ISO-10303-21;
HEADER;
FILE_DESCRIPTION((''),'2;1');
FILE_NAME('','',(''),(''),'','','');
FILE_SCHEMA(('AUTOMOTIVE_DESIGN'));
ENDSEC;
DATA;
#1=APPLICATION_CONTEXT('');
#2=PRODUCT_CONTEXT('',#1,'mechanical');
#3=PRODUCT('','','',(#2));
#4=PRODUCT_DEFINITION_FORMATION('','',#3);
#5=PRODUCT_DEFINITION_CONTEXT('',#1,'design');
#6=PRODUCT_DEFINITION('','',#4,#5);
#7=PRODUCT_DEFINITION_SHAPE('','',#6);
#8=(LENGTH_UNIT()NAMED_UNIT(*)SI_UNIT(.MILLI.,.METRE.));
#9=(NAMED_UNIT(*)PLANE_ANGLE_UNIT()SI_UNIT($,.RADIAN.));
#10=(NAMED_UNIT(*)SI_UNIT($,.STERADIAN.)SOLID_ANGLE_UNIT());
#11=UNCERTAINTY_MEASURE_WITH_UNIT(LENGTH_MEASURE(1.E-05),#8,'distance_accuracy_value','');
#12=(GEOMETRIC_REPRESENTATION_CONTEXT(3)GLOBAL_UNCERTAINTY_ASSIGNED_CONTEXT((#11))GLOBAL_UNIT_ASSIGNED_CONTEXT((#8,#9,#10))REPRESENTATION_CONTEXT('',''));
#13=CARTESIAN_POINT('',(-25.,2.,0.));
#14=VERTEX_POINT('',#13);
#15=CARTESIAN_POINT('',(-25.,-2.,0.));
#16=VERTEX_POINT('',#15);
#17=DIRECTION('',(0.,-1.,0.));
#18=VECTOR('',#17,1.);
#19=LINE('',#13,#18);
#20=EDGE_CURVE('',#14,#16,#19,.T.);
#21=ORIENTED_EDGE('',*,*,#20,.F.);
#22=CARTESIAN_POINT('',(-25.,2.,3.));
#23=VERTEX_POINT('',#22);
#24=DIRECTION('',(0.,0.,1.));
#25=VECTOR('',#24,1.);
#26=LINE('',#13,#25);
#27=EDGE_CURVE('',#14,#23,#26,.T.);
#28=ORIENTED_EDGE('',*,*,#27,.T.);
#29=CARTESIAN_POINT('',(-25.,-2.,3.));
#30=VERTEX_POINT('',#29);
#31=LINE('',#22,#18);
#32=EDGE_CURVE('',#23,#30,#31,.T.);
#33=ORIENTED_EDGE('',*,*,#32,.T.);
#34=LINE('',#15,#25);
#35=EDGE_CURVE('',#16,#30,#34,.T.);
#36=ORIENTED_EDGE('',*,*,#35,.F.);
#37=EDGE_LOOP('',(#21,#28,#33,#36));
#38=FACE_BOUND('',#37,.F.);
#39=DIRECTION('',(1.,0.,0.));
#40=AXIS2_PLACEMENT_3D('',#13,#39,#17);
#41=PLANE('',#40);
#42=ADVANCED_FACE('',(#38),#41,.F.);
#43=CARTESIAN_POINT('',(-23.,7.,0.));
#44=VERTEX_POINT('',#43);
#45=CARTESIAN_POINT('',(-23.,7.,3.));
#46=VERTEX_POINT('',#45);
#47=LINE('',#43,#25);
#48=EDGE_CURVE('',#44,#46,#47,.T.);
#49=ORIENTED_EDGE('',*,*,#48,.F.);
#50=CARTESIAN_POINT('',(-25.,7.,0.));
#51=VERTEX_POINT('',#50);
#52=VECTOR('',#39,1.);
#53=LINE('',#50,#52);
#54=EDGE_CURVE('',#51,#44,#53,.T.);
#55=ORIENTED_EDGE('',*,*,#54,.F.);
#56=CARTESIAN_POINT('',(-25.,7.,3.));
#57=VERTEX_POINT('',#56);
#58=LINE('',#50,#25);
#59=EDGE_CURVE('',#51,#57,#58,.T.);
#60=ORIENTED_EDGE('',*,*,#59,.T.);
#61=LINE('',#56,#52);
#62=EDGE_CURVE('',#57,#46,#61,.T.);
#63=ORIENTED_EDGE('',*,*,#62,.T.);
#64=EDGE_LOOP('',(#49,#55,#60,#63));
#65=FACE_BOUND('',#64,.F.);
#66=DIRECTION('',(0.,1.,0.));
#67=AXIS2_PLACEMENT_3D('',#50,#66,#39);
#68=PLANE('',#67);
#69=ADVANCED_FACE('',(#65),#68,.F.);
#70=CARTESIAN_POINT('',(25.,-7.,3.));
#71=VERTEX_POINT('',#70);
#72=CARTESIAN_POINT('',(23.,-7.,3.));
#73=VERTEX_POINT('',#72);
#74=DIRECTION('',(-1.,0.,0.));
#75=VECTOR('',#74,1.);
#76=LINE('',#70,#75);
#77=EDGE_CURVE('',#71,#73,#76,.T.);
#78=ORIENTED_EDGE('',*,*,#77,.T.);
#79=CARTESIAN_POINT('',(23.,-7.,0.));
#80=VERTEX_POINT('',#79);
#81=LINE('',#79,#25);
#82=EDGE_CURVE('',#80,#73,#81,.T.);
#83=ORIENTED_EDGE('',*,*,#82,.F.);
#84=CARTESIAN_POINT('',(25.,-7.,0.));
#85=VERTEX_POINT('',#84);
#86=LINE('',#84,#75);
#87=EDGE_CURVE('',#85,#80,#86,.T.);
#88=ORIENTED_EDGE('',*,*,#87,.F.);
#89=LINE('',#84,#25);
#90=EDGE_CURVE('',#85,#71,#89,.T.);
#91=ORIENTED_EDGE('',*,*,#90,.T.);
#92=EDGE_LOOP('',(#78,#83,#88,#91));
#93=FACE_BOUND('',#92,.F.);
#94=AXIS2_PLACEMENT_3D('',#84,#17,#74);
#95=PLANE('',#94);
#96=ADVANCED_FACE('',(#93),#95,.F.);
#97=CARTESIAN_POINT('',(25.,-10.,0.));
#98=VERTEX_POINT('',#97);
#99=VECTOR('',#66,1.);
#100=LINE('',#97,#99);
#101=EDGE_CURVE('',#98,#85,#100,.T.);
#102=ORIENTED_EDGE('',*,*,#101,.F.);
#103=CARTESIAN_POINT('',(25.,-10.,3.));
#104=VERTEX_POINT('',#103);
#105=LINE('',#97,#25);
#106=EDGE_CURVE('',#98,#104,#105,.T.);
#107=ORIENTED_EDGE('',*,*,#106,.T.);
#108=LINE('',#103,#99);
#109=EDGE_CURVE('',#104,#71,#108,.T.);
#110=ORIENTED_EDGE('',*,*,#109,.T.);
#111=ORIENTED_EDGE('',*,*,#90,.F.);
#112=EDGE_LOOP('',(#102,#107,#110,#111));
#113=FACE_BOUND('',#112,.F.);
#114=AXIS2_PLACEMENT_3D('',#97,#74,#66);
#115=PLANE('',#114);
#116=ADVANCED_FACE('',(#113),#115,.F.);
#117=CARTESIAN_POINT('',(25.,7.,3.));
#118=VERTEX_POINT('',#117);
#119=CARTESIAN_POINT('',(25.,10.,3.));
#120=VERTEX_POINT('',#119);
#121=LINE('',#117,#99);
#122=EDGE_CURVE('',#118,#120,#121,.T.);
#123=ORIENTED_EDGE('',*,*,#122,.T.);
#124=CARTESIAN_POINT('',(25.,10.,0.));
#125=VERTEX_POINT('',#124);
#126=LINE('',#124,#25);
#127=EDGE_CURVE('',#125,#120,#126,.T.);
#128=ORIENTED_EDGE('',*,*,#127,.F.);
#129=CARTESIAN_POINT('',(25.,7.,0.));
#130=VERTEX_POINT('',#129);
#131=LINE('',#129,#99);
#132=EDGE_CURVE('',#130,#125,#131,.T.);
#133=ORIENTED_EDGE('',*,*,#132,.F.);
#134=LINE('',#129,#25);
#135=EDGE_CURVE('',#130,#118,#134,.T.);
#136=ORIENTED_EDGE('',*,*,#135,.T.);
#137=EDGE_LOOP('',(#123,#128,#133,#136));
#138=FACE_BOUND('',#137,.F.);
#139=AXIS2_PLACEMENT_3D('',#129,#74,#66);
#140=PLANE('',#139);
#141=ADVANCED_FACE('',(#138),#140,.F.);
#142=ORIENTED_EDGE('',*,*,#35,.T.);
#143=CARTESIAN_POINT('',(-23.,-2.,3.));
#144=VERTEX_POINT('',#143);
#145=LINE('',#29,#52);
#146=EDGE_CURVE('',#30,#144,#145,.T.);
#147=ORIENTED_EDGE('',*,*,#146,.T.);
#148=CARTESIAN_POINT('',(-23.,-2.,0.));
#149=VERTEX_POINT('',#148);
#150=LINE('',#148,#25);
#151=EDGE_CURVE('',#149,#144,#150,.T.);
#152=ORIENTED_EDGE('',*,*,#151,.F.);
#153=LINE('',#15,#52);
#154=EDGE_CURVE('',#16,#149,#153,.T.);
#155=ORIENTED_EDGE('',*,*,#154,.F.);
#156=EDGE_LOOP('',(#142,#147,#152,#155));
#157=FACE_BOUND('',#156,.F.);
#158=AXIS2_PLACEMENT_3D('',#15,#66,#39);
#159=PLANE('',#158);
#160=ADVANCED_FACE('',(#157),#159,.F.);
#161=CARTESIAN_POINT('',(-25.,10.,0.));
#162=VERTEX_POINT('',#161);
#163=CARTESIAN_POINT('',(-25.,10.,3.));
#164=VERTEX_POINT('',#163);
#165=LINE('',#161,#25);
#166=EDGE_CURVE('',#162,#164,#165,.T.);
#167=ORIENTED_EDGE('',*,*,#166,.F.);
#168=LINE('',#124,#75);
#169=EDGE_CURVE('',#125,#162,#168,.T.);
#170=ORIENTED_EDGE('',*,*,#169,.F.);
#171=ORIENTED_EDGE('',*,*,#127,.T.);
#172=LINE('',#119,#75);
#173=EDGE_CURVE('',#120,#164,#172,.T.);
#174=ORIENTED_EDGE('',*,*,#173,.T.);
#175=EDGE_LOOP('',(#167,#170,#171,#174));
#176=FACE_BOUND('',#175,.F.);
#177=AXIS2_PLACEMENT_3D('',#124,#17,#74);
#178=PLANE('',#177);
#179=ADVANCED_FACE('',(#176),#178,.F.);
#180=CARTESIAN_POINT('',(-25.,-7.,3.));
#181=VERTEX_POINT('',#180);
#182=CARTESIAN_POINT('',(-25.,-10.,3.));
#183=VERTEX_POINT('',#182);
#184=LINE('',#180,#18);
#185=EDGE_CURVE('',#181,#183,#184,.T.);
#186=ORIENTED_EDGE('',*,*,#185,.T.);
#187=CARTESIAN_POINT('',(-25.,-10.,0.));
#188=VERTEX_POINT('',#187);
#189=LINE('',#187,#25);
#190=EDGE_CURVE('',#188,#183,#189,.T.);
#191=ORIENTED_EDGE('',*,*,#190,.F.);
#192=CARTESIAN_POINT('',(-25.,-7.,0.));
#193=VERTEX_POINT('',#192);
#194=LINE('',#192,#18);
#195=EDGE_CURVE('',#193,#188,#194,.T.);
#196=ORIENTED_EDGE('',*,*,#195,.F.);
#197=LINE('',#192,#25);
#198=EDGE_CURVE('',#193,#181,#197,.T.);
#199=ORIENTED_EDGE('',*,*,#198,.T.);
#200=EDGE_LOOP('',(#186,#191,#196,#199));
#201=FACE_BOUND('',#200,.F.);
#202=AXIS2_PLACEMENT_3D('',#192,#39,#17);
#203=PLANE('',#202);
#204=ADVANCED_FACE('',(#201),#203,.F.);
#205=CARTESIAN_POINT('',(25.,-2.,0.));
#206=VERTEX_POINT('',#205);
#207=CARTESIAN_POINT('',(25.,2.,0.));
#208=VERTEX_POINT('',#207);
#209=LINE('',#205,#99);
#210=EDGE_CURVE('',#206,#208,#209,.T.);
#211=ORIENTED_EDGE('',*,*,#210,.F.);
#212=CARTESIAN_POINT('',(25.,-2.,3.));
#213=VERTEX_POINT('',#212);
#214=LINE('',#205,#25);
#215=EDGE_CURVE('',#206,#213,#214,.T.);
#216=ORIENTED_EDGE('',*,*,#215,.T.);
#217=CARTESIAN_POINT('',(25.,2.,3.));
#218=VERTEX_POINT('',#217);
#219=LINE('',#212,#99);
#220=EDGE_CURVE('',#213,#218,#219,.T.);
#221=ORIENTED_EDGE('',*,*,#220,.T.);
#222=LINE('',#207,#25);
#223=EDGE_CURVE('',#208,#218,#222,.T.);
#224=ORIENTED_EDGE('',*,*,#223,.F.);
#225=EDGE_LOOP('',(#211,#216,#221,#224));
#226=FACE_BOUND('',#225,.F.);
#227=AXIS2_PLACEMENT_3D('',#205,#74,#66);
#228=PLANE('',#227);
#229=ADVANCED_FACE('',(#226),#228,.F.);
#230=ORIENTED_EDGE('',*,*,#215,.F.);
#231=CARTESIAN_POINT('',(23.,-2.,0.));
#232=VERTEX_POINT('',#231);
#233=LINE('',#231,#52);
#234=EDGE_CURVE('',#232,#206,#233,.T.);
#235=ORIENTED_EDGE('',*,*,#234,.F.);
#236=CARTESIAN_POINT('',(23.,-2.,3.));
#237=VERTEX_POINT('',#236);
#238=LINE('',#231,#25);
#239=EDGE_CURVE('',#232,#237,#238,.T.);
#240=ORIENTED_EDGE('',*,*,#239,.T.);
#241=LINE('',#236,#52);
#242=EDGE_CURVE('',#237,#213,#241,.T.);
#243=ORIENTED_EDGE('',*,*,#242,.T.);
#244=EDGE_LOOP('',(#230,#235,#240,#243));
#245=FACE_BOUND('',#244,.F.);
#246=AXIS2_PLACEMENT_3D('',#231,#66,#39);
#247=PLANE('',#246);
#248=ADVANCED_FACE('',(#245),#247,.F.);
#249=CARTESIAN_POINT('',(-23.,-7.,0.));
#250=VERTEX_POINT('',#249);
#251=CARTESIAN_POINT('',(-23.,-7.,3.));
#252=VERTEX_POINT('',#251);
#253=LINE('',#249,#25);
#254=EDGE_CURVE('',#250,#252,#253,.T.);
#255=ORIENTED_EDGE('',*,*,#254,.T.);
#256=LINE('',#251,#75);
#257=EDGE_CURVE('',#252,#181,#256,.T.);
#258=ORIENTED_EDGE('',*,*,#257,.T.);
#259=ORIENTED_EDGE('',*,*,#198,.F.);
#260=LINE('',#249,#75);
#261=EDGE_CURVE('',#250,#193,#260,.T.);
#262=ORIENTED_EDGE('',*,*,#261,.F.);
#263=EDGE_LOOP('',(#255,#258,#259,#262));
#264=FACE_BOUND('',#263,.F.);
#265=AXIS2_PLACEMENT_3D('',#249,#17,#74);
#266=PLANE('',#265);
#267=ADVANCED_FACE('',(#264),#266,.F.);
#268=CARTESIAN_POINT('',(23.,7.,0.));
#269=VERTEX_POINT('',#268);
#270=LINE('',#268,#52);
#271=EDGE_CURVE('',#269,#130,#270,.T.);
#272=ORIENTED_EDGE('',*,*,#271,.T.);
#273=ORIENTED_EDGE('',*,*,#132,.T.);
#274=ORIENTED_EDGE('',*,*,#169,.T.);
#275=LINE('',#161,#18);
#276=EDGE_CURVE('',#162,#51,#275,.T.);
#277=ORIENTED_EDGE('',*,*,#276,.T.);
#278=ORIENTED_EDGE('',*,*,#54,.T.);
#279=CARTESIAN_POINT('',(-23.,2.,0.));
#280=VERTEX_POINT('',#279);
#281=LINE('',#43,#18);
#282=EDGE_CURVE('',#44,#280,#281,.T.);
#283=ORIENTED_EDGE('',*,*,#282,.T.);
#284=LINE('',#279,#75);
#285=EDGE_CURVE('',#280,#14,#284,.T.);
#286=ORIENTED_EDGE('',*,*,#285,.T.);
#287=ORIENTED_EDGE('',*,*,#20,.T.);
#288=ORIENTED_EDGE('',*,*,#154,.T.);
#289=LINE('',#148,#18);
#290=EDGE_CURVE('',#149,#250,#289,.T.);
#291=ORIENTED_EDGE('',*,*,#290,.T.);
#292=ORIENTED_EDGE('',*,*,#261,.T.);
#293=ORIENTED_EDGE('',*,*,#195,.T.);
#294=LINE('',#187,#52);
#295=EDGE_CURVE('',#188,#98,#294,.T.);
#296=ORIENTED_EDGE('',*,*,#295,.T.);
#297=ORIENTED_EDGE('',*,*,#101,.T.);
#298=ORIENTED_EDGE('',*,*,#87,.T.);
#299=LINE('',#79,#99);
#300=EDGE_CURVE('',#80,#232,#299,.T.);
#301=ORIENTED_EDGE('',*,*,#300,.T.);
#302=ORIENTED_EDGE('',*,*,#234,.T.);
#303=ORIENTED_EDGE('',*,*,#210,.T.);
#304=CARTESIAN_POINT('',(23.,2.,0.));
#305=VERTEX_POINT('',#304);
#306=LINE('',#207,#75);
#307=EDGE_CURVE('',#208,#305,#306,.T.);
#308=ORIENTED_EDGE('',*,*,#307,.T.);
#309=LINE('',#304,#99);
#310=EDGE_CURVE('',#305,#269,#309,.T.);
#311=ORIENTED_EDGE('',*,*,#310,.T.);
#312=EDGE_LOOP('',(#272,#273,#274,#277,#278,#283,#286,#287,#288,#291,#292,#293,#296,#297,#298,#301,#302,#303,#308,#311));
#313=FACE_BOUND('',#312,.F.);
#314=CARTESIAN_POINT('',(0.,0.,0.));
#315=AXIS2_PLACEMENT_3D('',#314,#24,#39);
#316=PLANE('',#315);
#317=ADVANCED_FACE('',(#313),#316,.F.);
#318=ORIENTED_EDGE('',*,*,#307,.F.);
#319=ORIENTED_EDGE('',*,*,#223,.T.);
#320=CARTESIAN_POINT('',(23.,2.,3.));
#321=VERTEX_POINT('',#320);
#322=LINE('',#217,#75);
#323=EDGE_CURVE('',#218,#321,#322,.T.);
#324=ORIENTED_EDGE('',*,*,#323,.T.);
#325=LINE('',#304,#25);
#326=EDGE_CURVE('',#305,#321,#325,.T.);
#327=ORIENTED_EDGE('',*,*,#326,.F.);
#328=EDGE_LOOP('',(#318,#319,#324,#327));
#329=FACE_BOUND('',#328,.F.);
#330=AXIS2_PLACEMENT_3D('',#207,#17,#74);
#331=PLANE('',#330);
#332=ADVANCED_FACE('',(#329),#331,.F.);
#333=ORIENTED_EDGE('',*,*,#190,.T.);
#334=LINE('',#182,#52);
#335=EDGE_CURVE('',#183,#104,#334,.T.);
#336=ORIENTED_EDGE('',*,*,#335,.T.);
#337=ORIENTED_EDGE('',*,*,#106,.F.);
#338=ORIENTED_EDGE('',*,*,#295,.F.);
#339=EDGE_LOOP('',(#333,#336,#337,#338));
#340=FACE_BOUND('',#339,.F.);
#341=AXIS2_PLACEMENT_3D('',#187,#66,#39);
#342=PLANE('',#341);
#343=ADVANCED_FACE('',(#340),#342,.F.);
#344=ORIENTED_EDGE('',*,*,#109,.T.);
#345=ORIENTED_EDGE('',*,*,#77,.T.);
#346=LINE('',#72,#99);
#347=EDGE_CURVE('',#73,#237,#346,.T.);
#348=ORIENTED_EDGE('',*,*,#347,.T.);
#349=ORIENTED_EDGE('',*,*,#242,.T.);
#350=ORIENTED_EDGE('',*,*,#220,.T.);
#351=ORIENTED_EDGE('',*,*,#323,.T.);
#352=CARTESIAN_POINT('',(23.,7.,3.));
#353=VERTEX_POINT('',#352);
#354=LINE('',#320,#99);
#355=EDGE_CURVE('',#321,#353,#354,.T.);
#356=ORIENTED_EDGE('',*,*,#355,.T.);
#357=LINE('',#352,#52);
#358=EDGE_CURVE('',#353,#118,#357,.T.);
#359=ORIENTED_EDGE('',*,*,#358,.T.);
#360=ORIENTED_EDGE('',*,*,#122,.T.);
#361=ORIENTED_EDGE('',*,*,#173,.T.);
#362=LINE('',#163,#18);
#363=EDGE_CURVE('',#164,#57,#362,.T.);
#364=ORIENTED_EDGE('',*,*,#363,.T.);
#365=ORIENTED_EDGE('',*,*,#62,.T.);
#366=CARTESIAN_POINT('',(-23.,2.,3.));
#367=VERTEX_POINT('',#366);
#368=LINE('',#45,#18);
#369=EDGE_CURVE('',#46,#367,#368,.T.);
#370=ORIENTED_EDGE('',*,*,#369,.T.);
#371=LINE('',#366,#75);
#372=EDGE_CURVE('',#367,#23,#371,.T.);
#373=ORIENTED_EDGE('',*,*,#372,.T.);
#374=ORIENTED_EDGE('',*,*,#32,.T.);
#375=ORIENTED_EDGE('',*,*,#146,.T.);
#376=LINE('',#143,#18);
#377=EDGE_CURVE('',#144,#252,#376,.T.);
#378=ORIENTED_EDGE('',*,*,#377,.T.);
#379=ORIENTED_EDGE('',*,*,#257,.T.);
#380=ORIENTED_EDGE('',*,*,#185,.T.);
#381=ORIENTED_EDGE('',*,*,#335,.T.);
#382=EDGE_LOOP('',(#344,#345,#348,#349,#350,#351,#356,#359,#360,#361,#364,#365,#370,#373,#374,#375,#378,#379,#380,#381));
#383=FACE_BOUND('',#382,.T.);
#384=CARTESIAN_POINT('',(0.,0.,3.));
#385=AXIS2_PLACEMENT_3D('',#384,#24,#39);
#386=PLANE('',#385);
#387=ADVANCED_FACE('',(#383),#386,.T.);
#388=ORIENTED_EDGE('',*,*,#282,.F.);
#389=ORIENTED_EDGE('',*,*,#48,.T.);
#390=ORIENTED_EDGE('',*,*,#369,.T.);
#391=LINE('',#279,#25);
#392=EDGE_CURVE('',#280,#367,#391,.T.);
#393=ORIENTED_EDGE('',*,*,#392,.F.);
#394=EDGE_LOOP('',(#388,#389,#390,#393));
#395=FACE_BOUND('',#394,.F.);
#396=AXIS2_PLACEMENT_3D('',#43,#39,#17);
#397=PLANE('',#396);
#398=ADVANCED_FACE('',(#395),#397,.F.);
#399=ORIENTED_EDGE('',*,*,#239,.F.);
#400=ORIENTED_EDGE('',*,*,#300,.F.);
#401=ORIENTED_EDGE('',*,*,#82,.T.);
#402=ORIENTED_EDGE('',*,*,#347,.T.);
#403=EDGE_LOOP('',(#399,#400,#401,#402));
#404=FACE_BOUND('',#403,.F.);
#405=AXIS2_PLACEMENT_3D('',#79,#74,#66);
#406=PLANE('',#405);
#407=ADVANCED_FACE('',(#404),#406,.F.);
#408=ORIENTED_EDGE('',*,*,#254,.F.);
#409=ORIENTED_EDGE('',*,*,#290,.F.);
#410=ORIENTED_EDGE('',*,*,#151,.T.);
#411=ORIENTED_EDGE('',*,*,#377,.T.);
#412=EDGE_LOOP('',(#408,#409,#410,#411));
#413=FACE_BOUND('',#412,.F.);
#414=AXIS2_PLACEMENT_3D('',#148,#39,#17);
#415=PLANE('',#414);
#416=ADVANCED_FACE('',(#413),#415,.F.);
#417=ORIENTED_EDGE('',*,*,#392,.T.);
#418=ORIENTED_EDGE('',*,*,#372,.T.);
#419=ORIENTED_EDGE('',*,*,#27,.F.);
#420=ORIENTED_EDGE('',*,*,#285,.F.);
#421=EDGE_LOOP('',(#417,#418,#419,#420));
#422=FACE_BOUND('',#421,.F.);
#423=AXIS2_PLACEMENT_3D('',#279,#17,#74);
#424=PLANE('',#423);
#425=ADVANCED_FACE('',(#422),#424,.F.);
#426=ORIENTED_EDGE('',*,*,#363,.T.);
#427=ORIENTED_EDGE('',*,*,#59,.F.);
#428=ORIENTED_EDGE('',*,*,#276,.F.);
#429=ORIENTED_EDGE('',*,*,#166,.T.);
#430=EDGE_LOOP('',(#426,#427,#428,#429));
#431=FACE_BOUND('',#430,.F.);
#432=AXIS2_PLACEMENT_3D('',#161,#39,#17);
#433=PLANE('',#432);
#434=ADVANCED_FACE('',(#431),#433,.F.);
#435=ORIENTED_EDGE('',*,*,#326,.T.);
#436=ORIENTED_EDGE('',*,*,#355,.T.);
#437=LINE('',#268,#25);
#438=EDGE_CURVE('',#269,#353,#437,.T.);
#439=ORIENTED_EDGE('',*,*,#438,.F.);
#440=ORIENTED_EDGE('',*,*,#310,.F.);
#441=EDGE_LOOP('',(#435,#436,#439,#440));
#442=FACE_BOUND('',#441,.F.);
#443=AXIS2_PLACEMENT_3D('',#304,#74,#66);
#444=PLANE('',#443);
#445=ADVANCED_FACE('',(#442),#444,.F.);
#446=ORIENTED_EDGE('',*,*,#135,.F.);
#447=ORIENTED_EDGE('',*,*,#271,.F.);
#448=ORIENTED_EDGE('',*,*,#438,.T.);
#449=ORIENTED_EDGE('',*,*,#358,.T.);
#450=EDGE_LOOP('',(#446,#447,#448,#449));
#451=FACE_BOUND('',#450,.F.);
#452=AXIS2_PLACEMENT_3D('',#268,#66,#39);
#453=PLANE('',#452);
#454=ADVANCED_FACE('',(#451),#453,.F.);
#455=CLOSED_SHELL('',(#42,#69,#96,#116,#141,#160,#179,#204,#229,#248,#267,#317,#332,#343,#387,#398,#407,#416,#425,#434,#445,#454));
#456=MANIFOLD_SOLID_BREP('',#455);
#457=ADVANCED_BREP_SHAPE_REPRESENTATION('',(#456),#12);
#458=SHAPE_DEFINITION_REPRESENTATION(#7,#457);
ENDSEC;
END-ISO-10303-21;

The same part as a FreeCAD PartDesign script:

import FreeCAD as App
import Part
import Sketcher
from FreeCAD import Vector
Q = App.Units.Quantity


def add_polygon(sketch, points):
    """Adds a closed chain of lines whose ends are joined by coincident constraints."""
    first, n = sketch.GeometryCount, len(points)
    for a, b in zip(points, points[1:] + points[:1]):
        sketch.addGeometry(Part.LineSegment(App.Vector(*a, 0), App.Vector(*b, 0)), False)
    for i in range(n):
        sketch.addConstraint(Sketcher.Constraint("Coincident", first + i, 2, first + (i + 1) % n, 1))

doc = App.newDocument("Part")
body = doc.addObject("PartDesign::Body", "Body")

# Sketch on XY plane
sketch1 = doc.addObject("Sketcher::SketchObject", "Sketch")
body.addObject(sketch1)
sketch1.AttachmentSupport = (doc.XY_Plane, [""])
sketch1.MapMode = "FlatFace"
add_polygon(sketch1, [(25, 7), (25, 10), (-25, 10), (-25, 7), (-23, 7), (-23, 2), (-25, 2), (-25, -2), (-23, -2), (-23, -7), (-25, -7), (-25, -10), (25, -10), (25, -7), (23, -7), (23, -2), (25, -2), (25, 2), (23, 2), (23, 7)])  # lines 0-19
sketch1.addConstraint([
    Sketcher.Constraint("Vertical", 0),
    Sketcher.Constraint("Horizontal", 1),
    Sketcher.Constraint("Vertical", 2),
    Sketcher.Constraint("Horizontal", 3),
    Sketcher.Constraint("Vertical", 4),
    Sketcher.Constraint("Horizontal", 5),
    Sketcher.Constraint("Vertical", 6),
    Sketcher.Constraint("Horizontal", 7),
    Sketcher.Constraint("Vertical", 8),
    Sketcher.Constraint("Horizontal", 9),
    Sketcher.Constraint("Vertical", 10),
    Sketcher.Constraint("Horizontal", 11),
    Sketcher.Constraint("Vertical", 12),
    Sketcher.Constraint("Horizontal", 13),
    Sketcher.Constraint("Vertical", 14),
    Sketcher.Constraint("Horizontal", 15),
    Sketcher.Constraint("Vertical", 16),
    Sketcher.Constraint("Horizontal", 17),
    Sketcher.Constraint("Vertical", 18),
    Sketcher.Constraint("Horizontal", 19),
    Sketcher.Constraint("Symmetric", 0, 2, 10, 2, -1, 1),
    Sketcher.Constraint("Symmetric", 2, 2, 12, 2, -1, 1),
    Sketcher.Constraint("Symmetric", 4, 2, 14, 2, -1, 1),
    Sketcher.Constraint("Symmetric", 6, 2, 16, 2, -1, 1),
    Sketcher.Constraint("Symmetric", 8, 2, 18, 2, -1, 1),
    Sketcher.Constraint("Symmetric", 9, 2, 12, 2, -2),
    Sketcher.Constraint("Symmetric", 7, 2, 14, 2, -2),
    Sketcher.Constraint("Vertical", 2, 2, 5, 2),
    Sketcher.Constraint("DistanceX", 1, 2, 1, 1, Q("50 mm")),
    Sketcher.Constraint("DistanceX", 3, 1, 3, 2, Q("2 mm")),
    Sketcher.Constraint("DistanceY", 0, 1, 0, 2, Q("3 mm")),
    Sketcher.Constraint("DistanceY", 4, 2, 4, 1, Q("5 mm")),
    Sketcher.Constraint("DistanceY", 6, 2, 6, 1, Q("4 mm")),
])
pad1 = doc.addObject("PartDesign::Pad", "Pad")
body.addObject(pad1)
pad1.Profile = sketch1
pad1.Length = 3

doc.recompute()
